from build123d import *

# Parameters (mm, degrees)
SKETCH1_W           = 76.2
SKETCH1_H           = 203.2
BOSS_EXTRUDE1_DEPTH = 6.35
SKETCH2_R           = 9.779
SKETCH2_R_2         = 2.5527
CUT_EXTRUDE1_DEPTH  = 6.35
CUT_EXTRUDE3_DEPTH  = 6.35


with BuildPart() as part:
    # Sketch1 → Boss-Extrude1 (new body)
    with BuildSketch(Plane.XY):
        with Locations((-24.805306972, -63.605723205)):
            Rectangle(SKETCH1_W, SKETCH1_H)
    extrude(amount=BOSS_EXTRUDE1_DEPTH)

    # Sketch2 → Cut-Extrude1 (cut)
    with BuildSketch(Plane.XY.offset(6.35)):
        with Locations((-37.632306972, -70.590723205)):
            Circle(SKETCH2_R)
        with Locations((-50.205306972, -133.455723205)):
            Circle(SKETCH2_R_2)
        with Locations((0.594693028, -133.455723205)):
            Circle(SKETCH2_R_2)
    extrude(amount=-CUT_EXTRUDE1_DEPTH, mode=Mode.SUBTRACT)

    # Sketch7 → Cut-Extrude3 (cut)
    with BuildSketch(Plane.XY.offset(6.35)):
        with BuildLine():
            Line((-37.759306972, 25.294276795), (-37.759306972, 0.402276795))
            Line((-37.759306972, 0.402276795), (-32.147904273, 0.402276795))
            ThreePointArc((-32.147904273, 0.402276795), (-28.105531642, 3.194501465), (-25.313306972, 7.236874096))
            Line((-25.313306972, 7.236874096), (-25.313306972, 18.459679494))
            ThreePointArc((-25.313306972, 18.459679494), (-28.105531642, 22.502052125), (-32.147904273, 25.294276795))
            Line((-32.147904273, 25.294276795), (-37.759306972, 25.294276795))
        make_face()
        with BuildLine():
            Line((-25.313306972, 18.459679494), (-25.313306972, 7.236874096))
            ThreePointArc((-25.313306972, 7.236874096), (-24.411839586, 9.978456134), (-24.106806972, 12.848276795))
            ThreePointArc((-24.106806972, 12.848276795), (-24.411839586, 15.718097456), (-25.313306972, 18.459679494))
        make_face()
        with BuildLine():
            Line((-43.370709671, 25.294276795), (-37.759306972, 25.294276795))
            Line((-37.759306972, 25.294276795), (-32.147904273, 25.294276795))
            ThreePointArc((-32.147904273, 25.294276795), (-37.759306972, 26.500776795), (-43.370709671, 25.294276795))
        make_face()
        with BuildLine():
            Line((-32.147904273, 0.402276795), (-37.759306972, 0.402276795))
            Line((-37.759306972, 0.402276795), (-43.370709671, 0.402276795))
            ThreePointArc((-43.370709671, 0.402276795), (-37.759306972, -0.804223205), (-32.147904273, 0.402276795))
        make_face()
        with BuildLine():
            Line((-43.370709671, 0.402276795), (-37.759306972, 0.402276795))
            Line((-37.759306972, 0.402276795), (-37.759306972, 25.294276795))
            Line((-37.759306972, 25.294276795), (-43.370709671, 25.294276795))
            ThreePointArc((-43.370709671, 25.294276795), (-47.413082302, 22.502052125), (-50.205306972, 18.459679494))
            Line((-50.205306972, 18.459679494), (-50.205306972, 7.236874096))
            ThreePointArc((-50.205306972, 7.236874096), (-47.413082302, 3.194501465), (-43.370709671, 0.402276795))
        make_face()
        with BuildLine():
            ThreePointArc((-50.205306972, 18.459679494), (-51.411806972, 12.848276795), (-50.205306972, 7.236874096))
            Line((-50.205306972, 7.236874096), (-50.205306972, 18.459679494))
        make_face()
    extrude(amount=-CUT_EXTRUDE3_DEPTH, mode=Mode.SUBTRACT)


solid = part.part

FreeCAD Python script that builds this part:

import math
import FreeCAD as App
import Part
import Sketcher
Q = App.Units.Quantity


def add_polygon(sketch, points):
    """Adds a closed chain of lines whose ends are joined by coincident constraints."""
    first, n = sketch.GeometryCount, len(points)
    for a, b in zip(points, points[1:] + points[:1]):
        sketch.addGeometry(Part.LineSegment(App.Vector(*a, 0), App.Vector(*b, 0)), False)
    for i in range(n):
        sketch.addConstraint(Sketcher.Constraint("Coincident", first + i, 2, first + (i + 1) % n, 1))

doc = App.newDocument("Part")
body = doc.addObject("PartDesign::Body", "Body")

# Sketch on XY plane
sketch1 = doc.addObject("Sketcher::SketchObject", "Sketch")
body.addObject(sketch1)
sketch1.AttachmentSupport = (doc.XY_Plane, [""])
sketch1.MapMode = "FlatFace"
add_polygon(sketch1, [(-62.905307, 37.994277), (-62.905307, -165.205723), (13.294693, -165.205723), (13.294693, 37.994277)])  # lines 0-3
sketch1.addConstraint([
    Sketcher.Constraint("Vertical", 0),
    Sketcher.Constraint("Horizontal", 1),
    Sketcher.Constraint("Vertical", 2),
    Sketcher.Constraint("Horizontal", 3),
    Sketcher.Constraint("DistanceX", 1, 1, 1, 2, Q("3 in")),
    Sketcher.Constraint("DistanceY", 0, 2, 0, 1, Q("8 in")),
    Sketcher.Constraint("DistanceX", 0, 2, -1, 1, 62.905307),
    Sketcher.Constraint("DistanceY", 0, 2, -1, 1, 165.205723),
])
pad1 = doc.addObject("PartDesign::Pad", "Pad")
body.addObject(pad1)
pad1.Profile = sketch1
pad1.Length = Q("0.25 in")

# Sketch on XY plane
sketch2 = doc.addObject("Sketcher::SketchObject", "Sketch001")
body.addObject(sketch2)
sketch2.AttachmentSupport = (doc.XY_Plane, [""])
sketch2.MapMode = "FlatFace"
sketch2.AttachmentOffset = App.Placement(App.Vector(0, 0, 0.25 * 25.4), App.Rotation())
sketch2.addGeometry([
    Part.Circle(App.Vector(-37.632307, -70.590723, 0), App.Vector(0, 0, 1), 9.779),
    Part.Circle(App.Vector(-50.205307, -133.455723, 0), App.Vector(0, 0, 1), 2.5527),
    Part.Circle(App.Vector(0.594693, -133.455723, 0), App.Vector(0, 0, 1), 2.5527),
], False)
sketch2.addConstraint([
    Sketcher.Constraint("Equal", 1, 2),
    Sketcher.Constraint("Horizontal", 1, 3, 2, 3),
    Sketcher.Constraint("Diameter", 0, Q("0.77 in")),
    Sketcher.Constraint("Diameter", 1, Q("0.201 in")),
    Sketcher.Constraint("DistanceX", 1, 3, 2, 3, Q("2 in")),
    Sketcher.Constraint("DistanceX", 1, 3, 0, 3, Q("0.495 in")),
    Sketcher.Constraint("DistanceY", 1, 3, 0, 3, Q("2.475 in")),
    Sketcher.Constraint("DistanceX", 0, 3, -1, 1, 37.632307),
    Sketcher.Constraint("DistanceY", 0, 3, -1, 1, 70.590723),
])
pocket1 = doc.addObject("PartDesign::Pocket", "Pocket")
body.addObject(pocket1)
pocket1.Profile = sketch2
pocket1.Length = Q("0.25 in")

# Sketch on XY plane
sketch3 = doc.addObject("Sketcher::SketchObject", "Sketch002")
body.addObject(sketch3)
sketch3.AttachmentSupport = (doc.XY_Plane, [""])
sketch3.MapMode = "FlatFace"
sketch3.AttachmentOffset = App.Placement(App.Vector(0, 0, 0.25 * 25.4), App.Rotation())
sketch3.addGeometry([
    Part.ArcOfCircle(Part.Circle(App.Vector(-37.759307, 12.848277, 0), App.Vector(0, 0, 1), 13.6525), math.radians(-114.268705), math.radians(-65.731295)),  # 0
    Part.ArcOfCircle(Part.Circle(App.Vector(-37.759307, 12.848277, 0), App.Vector(0, 0, 1), 13.6525), math.radians(-65.731295), math.radians(-24.268705)),  # 1
    Part.ArcOfCircle(Part.Circle(App.Vector(-37.759307, 12.848277, 0), App.Vector(0, 0, 1), 13.6525), math.radians(-24.268705), math.radians(0)),  # 2
    Part.ArcOfCircle(Part.Circle(App.Vector(-37.759307, 12.848277, 0), App.Vector(0, 0, 1), 13.6525), math.radians(0), math.radians(24.268705)),  # 3
    Part.ArcOfCircle(Part.Circle(App.Vector(-37.759307, 12.848277, 0), App.Vector(0, 0, 1), 13.6525), math.radians(24.268705), math.radians(65.731295)),  # 4
    Part.ArcOfCircle(Part.Circle(App.Vector(-37.759307, 12.848277, 0), App.Vector(0, 0, 1), 13.6525), math.radians(65.731295), math.radians(114.268705)),  # 5
    Part.ArcOfCircle(Part.Circle(App.Vector(-37.759307, 12.848277, 0), App.Vector(0, 0, 1), 13.6525), math.radians(114.268705), math.radians(155.731295)),  # 6
    Part.ArcOfCircle(Part.Circle(App.Vector(-37.759307, 12.848277, 0), App.Vector(0, 0, 1), 13.6525), math.radians(155.731295), math.radians(204.268705)),  # 7
    Part.ArcOfCircle(Part.Circle(App.Vector(-37.759307, 12.848277, 0), App.Vector(0, 0, 1), 13.6525), math.radians(-155.731295), math.radians(-114.268705)),  # 8
], False)
sketch3.addConstraint([
    Sketcher.Constraint("Tangent", 0, 2, 1, 1),
    Sketcher.Constraint("Tangent", 1, 2, 2, 1),
    Sketcher.Constraint("Tangent", 2, 2, 3, 1),
    Sketcher.Constraint("Tangent", 3, 2, 4, 1),
    Sketcher.Constraint("Tangent", 4, 2, 5, 1),
    Sketcher.Constraint("Tangent", 5, 2, 6, 1),
    Sketcher.Constraint("Tangent", 6, 2, 7, 1),
    Sketcher.Constraint("Tangent", 7, 2, 8, 1),
    Sketcher.Constraint("Tangent", 8, 2, 0, 1),
    Sketcher.Constraint("Coincident", 2, 3, 0, 3),
    Sketcher.Constraint("Coincident", 4, 3, 0, 3),
    Sketcher.Constraint("Coincident", 6, 3, 0, 3),
    Sketcher.Constraint("Horizontal", 8, 3, 2, 2),
    Sketcher.Constraint("Horizontal", 4, 2, 5, 2),
    Sketcher.Constraint("Horizontal", 3, 2, 6, 2),
    Sketcher.Constraint("Horizontal", 1, 2, 7, 2),
    Sketcher.Constraint("Horizontal", 0, 2, 8, 2),
    Sketcher.Constraint("Vertical", 1, 2, 3, 2),
    Sketcher.Constraint("Vertical", 0, 2, 4, 2),
    Sketcher.Constraint("Radius", 0, Q("0.5375 in")),
    Sketcher.Constraint("DistanceY", 0, 2, 6, 3, Q("0.49 in")),
    Sketcher.Constraint("DistanceX", 6, 3, 1, 2, Q("0.49 in")),
    Sketcher.Constraint("DistanceY", -1, 1, 3, 2, 18.459679),
    Sketcher.Constraint("DistanceX", 5, 2, -1, 1, 43.37071),
])
pocket2 = doc.addObject("PartDesign::Pocket", "Pocket001")
body.addObject(pocket2)
pocket2.Profile = sketch3
pocket2.Length = Q("0.25 in")

doc.recompute()
